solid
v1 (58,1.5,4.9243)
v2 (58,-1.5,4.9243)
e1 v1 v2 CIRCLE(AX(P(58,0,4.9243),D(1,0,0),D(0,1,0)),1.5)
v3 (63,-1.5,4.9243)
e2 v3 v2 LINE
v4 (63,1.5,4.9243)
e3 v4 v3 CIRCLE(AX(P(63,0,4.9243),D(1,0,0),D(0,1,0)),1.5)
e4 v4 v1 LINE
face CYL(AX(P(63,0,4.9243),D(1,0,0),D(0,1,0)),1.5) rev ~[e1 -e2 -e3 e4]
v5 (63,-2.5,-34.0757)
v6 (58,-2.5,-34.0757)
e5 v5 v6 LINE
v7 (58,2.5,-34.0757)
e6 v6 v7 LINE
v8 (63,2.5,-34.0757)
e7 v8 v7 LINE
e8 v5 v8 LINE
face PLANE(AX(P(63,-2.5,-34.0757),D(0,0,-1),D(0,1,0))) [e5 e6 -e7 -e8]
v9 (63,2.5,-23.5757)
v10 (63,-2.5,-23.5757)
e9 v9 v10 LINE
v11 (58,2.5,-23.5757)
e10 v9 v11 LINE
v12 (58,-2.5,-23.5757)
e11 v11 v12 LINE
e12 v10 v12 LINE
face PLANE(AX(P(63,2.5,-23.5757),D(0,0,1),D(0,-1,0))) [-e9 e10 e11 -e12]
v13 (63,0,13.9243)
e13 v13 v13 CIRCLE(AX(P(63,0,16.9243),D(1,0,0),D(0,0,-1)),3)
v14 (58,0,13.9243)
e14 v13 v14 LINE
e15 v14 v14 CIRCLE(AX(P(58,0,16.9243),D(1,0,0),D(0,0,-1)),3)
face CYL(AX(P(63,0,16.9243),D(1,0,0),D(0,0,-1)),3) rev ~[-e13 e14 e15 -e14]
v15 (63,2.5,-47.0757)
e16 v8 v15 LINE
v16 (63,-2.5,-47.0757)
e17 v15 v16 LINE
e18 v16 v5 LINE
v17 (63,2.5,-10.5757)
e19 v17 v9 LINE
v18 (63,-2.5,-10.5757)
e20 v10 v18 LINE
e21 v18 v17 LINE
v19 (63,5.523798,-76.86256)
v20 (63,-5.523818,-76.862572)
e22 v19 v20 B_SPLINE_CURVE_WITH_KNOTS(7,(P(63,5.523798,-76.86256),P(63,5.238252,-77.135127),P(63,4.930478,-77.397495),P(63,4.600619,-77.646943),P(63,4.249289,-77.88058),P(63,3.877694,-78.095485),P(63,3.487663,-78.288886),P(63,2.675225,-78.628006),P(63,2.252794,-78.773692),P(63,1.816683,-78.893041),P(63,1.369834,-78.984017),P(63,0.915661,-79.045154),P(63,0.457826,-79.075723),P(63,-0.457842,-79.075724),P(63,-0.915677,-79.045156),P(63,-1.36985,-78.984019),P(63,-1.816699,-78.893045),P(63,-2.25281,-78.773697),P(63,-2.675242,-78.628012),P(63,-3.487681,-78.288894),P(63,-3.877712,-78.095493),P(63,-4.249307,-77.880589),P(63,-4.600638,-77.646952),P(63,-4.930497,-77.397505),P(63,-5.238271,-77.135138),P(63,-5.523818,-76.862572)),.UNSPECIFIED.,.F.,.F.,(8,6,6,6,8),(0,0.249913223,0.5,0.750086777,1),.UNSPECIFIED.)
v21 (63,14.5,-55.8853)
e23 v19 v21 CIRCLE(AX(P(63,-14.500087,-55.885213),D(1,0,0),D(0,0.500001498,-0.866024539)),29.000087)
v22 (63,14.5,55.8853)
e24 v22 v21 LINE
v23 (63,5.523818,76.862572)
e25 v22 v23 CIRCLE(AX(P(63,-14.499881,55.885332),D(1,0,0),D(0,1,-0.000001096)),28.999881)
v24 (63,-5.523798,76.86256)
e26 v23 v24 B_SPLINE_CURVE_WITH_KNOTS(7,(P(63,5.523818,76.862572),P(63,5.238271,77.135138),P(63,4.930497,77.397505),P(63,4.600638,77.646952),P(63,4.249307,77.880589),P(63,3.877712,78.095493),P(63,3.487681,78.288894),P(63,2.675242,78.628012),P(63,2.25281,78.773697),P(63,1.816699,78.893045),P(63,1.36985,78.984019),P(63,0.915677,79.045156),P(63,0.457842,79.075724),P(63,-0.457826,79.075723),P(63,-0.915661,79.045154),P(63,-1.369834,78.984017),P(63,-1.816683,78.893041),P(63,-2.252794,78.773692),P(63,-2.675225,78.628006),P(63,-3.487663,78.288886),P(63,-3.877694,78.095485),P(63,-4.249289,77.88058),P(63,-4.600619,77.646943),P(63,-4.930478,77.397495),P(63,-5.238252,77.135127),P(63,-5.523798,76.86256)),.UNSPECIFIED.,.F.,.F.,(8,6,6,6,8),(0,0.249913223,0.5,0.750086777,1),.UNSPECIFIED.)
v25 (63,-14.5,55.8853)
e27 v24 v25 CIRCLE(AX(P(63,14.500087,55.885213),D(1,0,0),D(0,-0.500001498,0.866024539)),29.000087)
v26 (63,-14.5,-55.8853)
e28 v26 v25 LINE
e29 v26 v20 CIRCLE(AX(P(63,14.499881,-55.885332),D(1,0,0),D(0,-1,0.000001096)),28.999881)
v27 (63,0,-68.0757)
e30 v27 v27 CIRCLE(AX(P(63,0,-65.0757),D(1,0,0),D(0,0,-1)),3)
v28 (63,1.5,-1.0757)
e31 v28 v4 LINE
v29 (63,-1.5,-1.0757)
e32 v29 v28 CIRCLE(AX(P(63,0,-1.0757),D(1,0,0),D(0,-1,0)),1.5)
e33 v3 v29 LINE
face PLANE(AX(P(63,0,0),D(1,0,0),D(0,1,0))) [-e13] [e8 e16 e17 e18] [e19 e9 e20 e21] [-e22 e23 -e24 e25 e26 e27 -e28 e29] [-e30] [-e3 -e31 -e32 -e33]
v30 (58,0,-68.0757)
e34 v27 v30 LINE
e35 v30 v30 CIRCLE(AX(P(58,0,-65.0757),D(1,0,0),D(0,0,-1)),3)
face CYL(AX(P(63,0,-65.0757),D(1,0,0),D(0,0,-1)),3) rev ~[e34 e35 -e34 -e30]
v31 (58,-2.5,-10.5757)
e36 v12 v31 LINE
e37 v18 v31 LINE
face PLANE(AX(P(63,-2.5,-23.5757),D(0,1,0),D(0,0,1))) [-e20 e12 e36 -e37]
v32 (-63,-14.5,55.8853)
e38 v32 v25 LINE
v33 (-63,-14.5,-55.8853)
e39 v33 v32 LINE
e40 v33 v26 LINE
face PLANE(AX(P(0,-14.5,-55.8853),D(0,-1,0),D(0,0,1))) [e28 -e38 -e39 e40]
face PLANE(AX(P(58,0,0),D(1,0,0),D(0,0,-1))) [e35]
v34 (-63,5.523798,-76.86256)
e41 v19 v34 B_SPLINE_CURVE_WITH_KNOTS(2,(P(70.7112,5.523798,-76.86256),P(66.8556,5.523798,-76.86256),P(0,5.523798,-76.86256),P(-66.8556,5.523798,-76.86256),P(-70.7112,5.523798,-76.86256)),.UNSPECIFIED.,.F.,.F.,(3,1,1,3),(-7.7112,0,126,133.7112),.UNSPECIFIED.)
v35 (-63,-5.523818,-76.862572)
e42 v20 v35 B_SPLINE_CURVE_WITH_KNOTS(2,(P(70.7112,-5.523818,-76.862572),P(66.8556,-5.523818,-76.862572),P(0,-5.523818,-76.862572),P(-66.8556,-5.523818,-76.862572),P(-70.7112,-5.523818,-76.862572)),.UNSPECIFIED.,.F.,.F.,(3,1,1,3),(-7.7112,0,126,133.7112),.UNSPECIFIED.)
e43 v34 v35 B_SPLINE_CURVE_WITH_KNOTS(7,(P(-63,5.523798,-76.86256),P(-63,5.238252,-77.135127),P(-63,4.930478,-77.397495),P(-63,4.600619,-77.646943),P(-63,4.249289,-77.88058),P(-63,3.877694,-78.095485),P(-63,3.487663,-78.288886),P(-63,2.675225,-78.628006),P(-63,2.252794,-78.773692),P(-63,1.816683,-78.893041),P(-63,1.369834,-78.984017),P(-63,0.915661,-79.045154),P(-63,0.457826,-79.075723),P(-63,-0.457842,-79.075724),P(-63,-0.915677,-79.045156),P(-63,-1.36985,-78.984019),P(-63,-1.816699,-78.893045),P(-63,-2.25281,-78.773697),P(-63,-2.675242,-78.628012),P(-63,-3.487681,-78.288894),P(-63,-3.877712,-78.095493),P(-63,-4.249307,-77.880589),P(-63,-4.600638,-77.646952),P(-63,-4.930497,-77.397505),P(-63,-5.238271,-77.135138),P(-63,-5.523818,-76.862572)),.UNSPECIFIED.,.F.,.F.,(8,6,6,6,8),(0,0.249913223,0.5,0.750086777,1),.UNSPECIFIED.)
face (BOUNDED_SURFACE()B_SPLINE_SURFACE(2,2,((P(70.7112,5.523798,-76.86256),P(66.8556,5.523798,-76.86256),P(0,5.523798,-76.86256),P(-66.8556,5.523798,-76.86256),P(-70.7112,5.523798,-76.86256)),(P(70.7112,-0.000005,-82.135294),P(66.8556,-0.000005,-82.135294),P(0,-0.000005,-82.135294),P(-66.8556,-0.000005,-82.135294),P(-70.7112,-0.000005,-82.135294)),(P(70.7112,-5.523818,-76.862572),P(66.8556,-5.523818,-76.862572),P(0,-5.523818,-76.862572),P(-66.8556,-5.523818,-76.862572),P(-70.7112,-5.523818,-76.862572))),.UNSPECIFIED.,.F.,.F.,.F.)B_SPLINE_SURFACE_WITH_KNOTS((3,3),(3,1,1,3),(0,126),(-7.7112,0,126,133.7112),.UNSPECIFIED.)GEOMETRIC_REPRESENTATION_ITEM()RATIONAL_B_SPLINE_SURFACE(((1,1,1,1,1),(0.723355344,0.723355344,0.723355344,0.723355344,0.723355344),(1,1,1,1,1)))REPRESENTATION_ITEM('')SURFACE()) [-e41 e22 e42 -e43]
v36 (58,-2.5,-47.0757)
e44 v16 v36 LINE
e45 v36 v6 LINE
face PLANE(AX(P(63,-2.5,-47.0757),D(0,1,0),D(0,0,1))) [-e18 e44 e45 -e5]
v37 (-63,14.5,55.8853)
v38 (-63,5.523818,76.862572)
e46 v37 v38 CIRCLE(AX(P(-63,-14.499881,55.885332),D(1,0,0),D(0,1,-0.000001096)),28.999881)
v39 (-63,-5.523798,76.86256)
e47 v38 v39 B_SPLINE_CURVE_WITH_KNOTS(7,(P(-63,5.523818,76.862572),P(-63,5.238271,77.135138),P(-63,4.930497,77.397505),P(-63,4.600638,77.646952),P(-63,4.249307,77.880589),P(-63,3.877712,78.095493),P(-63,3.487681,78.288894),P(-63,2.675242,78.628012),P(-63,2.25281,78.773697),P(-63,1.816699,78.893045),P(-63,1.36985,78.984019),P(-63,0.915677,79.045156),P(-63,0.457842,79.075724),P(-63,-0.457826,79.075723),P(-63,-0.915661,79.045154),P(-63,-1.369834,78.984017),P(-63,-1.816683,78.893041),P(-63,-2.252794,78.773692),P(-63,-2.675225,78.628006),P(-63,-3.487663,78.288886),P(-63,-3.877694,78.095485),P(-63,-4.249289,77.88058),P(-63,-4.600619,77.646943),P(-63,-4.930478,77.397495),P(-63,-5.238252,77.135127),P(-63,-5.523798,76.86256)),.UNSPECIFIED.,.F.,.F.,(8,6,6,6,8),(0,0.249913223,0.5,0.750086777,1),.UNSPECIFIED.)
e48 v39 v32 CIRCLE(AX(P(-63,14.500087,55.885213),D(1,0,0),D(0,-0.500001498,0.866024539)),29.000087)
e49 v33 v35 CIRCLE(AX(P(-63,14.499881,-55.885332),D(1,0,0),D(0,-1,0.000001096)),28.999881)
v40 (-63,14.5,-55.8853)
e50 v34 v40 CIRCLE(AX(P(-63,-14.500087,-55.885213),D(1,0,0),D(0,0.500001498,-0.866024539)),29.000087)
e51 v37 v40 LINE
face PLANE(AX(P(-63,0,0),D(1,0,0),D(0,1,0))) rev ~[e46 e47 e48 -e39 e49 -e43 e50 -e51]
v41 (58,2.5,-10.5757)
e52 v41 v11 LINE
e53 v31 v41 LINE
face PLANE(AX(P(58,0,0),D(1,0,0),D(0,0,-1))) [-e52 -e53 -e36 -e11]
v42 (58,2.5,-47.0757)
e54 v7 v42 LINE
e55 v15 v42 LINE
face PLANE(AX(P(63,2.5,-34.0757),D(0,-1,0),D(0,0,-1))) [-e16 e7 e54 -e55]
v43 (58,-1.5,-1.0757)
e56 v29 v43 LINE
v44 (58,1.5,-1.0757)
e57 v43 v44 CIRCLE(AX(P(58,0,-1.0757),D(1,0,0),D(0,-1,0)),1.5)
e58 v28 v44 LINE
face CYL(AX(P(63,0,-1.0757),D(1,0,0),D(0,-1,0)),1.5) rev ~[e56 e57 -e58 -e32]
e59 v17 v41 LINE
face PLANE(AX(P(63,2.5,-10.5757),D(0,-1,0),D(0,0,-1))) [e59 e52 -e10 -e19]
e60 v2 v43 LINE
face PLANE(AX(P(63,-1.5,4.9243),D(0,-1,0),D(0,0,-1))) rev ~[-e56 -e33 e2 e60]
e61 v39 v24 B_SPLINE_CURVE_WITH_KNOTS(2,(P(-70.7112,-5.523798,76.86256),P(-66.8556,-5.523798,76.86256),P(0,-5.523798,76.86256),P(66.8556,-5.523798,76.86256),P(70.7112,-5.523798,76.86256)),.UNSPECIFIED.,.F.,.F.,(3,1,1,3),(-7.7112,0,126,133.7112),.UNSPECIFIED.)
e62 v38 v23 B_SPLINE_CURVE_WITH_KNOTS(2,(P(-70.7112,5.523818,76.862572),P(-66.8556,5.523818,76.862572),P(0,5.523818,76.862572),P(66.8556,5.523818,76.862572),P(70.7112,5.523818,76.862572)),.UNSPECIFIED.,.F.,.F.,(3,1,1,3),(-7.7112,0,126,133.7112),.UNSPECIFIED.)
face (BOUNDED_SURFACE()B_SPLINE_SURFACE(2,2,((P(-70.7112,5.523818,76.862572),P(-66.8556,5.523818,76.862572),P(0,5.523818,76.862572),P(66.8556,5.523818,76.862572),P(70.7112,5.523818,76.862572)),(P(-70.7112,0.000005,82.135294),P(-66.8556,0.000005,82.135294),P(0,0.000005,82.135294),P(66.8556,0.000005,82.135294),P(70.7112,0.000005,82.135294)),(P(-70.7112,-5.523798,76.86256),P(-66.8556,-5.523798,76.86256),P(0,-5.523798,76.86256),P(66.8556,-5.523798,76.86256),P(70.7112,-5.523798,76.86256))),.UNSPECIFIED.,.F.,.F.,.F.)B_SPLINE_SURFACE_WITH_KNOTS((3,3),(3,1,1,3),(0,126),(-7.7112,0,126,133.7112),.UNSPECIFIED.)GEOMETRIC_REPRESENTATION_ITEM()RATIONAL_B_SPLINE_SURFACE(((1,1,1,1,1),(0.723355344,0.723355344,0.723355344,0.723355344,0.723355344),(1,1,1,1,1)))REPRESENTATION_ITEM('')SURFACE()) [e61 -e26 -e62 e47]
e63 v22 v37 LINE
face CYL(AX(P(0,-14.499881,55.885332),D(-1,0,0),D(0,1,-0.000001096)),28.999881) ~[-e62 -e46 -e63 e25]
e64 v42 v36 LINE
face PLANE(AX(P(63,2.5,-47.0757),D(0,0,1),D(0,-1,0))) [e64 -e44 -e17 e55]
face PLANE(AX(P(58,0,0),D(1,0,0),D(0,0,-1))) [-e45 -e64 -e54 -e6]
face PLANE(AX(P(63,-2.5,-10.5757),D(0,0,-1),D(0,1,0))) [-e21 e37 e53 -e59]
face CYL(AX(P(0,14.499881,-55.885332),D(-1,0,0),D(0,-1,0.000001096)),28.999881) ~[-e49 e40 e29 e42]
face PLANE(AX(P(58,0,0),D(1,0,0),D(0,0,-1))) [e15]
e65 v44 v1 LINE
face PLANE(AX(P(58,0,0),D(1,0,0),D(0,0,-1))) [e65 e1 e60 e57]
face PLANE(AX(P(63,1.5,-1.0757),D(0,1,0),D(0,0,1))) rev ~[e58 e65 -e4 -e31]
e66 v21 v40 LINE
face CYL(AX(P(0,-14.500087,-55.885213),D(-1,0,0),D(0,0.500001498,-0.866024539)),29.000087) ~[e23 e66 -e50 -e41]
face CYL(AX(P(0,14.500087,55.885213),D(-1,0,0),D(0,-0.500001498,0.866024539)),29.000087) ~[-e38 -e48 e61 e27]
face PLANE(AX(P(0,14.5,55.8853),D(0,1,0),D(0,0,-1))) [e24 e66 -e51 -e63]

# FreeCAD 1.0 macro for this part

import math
import FreeCAD as App
import Part
import Sketcher
Q = App.Units.Quantity


def edges_at(feature, points):
    """Names of the edges that pass closest to the given points."""
    edges = feature.Shape.Edges
    near = lambda p: min(range(len(edges)), key=lambda i: edges[i].distToShape(Part.Vertex(*p))[0])
    return sorted({f"Edge{near(p) + 1}" for p in points})

doc = App.newDocument("Part")
body = doc.addObject("PartDesign::Body", "Body")

# Sketch on YZ plane
sketch1 = body.newObject("Sketcher::SketchObject", "Sketch")
sketch1.AttachmentSupport = (doc.getObject("YZ_Plane"), [""])
sketch1.MapMode = "FlatFace"
sketch1.addGeometry([
    Part.ArcOfCircle(Part.Circle(App.Vector(-14, 56, 0), App.Vector(0, 0, 1), 29), math.radians(0), math.radians(60)),  # 0
    Part.ArcOfCircle(Part.Circle(App.Vector(14, 56, 0), App.Vector(0, 0, 1), 29), math.radians(120), math.radians(180)),  # 1
    Part.LineSegment(App.Vector(-14, 56, 0), App.Vector(-14, -56, 0)),  # 2
    Part.ArcOfCircle(Part.Circle(App.Vector(14, -56, 0), App.Vector(0, 0, 1), 29), math.radians(180), math.radians(240)),  # 3
    Part.ArcOfCircle(Part.Circle(App.Vector(-14, -56, 0), App.Vector(0, 0, 1), 29), math.radians(-60), math.radians(0)),  # 4
    Part.LineSegment(App.Vector(14, -56, 0), App.Vector(14, 56, 0)),  # 5
], False)
sketch1.addConstraint([
    Sketcher.Constraint("Coincident", 0, 2, 1, 1),
    Sketcher.Constraint("Tangent", 1, 2, 2, 1),
    Sketcher.Constraint("Tangent", 2, 2, 3, 1),
    Sketcher.Constraint("Coincident", 3, 2, 4, 1),
    Sketcher.Constraint("Tangent", 4, 2, 5, 1),
    Sketcher.Constraint("Tangent", 5, 2, 0, 1),
    Sketcher.Constraint("Vertical", 2),
    Sketcher.Constraint("Vertical", 5),
    Sketcher.Constraint("Coincident", 1, 2, 0, 3),
    Sketcher.Constraint("Coincident", 2, 2, 4, 3),
    Sketcher.Constraint("Equal", 0, 1),
    Sketcher.Constraint("Equal", 1, 3),
    Sketcher.Constraint("Symmetric", 0, 3, 3, 3, -1, 1),
    Sketcher.Constraint("Radius", 0, Q("29 mm")),
    Sketcher.Constraint("DistanceY", -1, 1, 0, 2, Q("81 mm")),
])
pad1 = body.newObject("PartDesign::Pad", "Pad")
pad1.Profile = sketch1
pad1.Length = 126
pad1.Midplane = True
doc.recompute()

fillet = body.newObject("PartDesign::Fillet", "Fillet")
fillet.Base = (pad1, edges_at(pad1, [(0, 0, 81), (0, 0, -81)]))
fillet.Radius = 8

# Sketch on YZ plane
sketch2 = body.newObject("Sketcher::SketchObject", "Sketch001")
sketch2.AttachmentSupport = (doc.getObject("YZ_Plane"), [""])
sketch2.MapMode = "FlatFace"
sketch2.AttachmentOffset = App.Placement(App.Vector(0, 0, 63), App.Rotation())
sketch2.addGeometry([
    Part.Circle(App.Vector(0, -65.1, 0), App.Vector(0, 0, 1), 3),  # 0
    Part.Circle(App.Vector(0, 16.9, 0), App.Vector(0, 0, 1), 3),  # 1
    Part.LineSegment(App.Vector(2.5, -47.1, 0), App.Vector(2.5, -34.1, 0)),  # 2
    Part.LineSegment(App.Vector(2.5, -34.1, 0), App.Vector(-2.5, -34.1, 0)),  # 3
    Part.LineSegment(App.Vector(-2.5, -34.1, 0), App.Vector(-2.5, -47.1, 0)),  # 4
    Part.LineSegment(App.Vector(-2.5, -47.1, 0), App.Vector(2.5, -47.1, 0)),  # 5
    Part.LineSegment(App.Vector(2.5, -23.6, 0), App.Vector(2.5, -10.6, 0)),  # 6
    Part.LineSegment(App.Vector(2.5, -10.6, 0), App.Vector(-2.5, -10.6, 0)),  # 7
    Part.LineSegment(App.Vector(-2.5, -10.6, 0), App.Vector(-2.5, -23.6, 0)),  # 8
    Part.LineSegment(App.Vector(-2.5, -23.6, 0), App.Vector(2.5, -23.6, 0)),  # 9
    Part.ArcOfCircle(Part.Circle(App.Vector(0, 4.9, 0), App.Vector(0, 0, 1), 1.5), math.radians(0), math.radians(180)),  # 10
    Part.LineSegment(App.Vector(-1.5, 4.9, 0), App.Vector(-1.5, -1.1, 0)),  # 11
    Part.ArcOfCircle(Part.Circle(App.Vector(0, -1.1, 0), App.Vector(0, 0, 1), 1.5), math.radians(180), math.radians(360)),  # 12
    Part.LineSegment(App.Vector(1.5, -1.1, 0), App.Vector(1.5, 4.9, 0)),  # 13
], False)
sketch2.addConstraint([
    Sketcher.Constraint("Coincident", 2, 2, 3, 1),
    Sketcher.Constraint("Coincident", 3, 2, 4, 1),
    Sketcher.Constraint("Coincident", 4, 2, 5, 1),
    Sketcher.Constraint("Coincident", 5, 2, 2, 1),
    Sketcher.Constraint("Coincident", 6, 2, 7, 1),
    Sketcher.Constraint("Coincident", 7, 2, 8, 1),
    Sketcher.Constraint("Coincident", 8, 2, 9, 1),
    Sketcher.Constraint("Coincident", 9, 2, 6, 1),
    Sketcher.Constraint("Tangent", 10, 2, 11, 1),
    Sketcher.Constraint("Tangent", 11, 2, 12, 1),
    Sketcher.Constraint("Tangent", 12, 2, 13, 1),
    Sketcher.Constraint("Tangent", 13, 2, 10, 1),
    Sketcher.Constraint("Vertical", 2),
    Sketcher.Constraint("Horizontal", 3),
    Sketcher.Constraint("Vertical", 4),
    Sketcher.Constraint("Horizontal", 5),
    Sketcher.Constraint("Vertical", 6),
    Sketcher.Constraint("Horizontal", 7),
    Sketcher.Constraint("Vertical", 8),
    Sketcher.Constraint("Horizontal", 9),
    Sketcher.Constraint("Vertical", 11),
    Sketcher.Constraint("Vertical", 13),
    Sketcher.Constraint("Equal", 0, 1),
    Sketcher.Constraint("PointOnObject", 0, 3, -2),
    Sketcher.Constraint("PointOnObject", 1, 3, -2),
    Sketcher.Constraint("PointOnObject", 10, 3, -2),
    Sketcher.Constraint("Vertical", 5, 2, 6, 2),
    Sketcher.Constraint("Vertical", 4, 2, 7, 2),
    Sketcher.Constraint("Equal", 4, 6),
    Sketcher.Constraint("Diameter", 0, Q("6 mm")),
    Sketcher.Constraint("Radius", 10, Q("1.5 mm")),
    Sketcher.Constraint("DistanceX", 3, 2, 3, 1, Q("5 mm")),
    Sketcher.Constraint("DistanceY", 2, 1, 2, 2, Q("13 mm")),
    Sketcher.Constraint("DistanceY", 11, 2, 11, 1, Q("6 mm")),
    Sketcher.Constraint("DistanceY", 0, 3, 1, 3, Q("82 mm")),
    Sketcher.Constraint("DistanceY", 10, 3, 1, 3, Q("12 mm")),
    Sketcher.Constraint("DistanceY", 0, 3, 2, 2, Q("31 mm")),
    Sketcher.Constraint("DistanceX", 7, 2, 10, 2, Q("1 mm")),
    Sketcher.Constraint("DistanceY", 6, 2, 12, 3, Q("9.5 mm")),
    Sketcher.Constraint("DistanceY", 0, 3, -1, 1, Q("65.0757 mm")),
])
pocket1 = body.newObject("PartDesign::Pocket", "Pocket")
pocket1.Profile = sketch2
pocket1.Length = 5

doc.recompute()
